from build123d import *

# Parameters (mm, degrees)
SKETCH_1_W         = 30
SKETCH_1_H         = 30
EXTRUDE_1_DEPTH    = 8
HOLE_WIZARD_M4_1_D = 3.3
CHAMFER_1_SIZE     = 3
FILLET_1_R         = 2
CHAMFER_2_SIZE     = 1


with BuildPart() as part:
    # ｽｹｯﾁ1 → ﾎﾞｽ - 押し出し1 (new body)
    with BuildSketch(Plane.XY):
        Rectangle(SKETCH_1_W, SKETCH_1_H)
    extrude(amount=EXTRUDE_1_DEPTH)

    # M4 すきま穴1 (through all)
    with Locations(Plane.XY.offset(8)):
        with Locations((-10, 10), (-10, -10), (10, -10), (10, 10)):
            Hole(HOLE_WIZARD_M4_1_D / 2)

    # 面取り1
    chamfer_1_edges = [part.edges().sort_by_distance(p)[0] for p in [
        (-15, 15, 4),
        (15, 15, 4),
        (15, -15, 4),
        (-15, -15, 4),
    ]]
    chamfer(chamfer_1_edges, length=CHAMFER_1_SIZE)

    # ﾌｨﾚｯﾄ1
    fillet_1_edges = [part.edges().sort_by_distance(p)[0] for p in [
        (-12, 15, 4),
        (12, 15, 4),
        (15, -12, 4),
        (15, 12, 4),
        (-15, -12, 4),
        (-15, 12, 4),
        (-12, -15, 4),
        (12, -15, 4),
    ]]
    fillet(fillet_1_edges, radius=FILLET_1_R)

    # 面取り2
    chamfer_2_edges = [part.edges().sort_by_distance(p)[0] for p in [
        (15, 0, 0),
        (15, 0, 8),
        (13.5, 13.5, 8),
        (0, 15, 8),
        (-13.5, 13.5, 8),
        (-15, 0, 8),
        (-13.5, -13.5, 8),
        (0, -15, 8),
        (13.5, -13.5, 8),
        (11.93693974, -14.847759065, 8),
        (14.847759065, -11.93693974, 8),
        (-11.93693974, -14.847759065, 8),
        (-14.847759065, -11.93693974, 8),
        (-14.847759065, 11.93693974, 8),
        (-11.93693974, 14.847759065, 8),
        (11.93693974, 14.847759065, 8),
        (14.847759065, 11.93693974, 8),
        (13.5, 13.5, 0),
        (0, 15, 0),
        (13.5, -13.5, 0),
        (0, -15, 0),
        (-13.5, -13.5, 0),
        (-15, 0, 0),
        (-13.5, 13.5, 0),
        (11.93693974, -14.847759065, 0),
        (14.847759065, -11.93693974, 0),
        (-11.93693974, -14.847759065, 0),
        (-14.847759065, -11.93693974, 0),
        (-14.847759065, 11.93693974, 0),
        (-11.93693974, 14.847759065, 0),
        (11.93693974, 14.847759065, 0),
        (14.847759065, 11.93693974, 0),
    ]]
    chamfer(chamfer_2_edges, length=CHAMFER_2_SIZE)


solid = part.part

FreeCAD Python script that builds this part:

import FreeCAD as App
import Part
import Sketcher

V = App.Vector
Q = App.Units.Quantity


def edges_at(feature, points):
    """Names of the edges that pass closest to the given points."""
    edges = feature.Shape.Edges
    near = lambda p: min(range(len(edges)), key=lambda i: edges[i].distToShape(Part.Vertex(*p))[0])
    return sorted({f"Edge{near(p) + 1}" for p in points})


def add_polygon(sketch, points):
    """Adds a closed chain of lines whose ends are joined by coincident constraints."""
    first, n = sketch.GeometryCount, len(points)
    for a, b in zip(points, points[1:] + points[:1]):
        sketch.addGeometry(Part.LineSegment(App.Vector(*a, 0), App.Vector(*b, 0)), False)
    for i in range(n):
        sketch.addConstraint(Sketcher.Constraint("Coincident", first + i, 2, first + (i + 1) % n, 1))

doc = App.newDocument("Part")
body = doc.addObject("PartDesign::Body", "Body")

# Sketch on XY plane
sketch1 = doc.addObject("Sketcher::SketchObject", "Sketch")
body.addObject(sketch1)
sketch1.AttachmentSupport = (doc.XY_Plane, [""])
sketch1.MapMode = "FlatFace"
add_polygon(sketch1, [(-15, 15), (-15, -15), (15, -15), (15, 15)])  # lines 0-3
sketch1.addConstraint(Sketcher.Constraint("Vertical", 0))
sketch1.addConstraint(Sketcher.Constraint("Horizontal", 1))
sketch1.addConstraint(Sketcher.Constraint("Vertical", 2))
sketch1.addConstraint(Sketcher.Constraint("Horizontal", 3))
sketch1.addConstraint(Sketcher.Constraint("Symmetric", 0, 2, 2, 2, -1, 1))
sketch1.addConstraint(Sketcher.Constraint("Equal", 3, 0))
sketch1.addConstraint(Sketcher.Constraint("DistanceX", 1, 1, 1, 2, Q("30 mm")))
pad1 = doc.addObject("PartDesign::Pad", "Pad")
body.addObject(pad1)
pad1.Profile = sketch1
pad1.Length = 8

# Sketch on XY plane
sketch2 = doc.addObject("Sketcher::SketchObject", "Sketch001")
body.addObject(sketch2)
sketch2.AttachmentSupport = (doc.XY_Plane, [""])
sketch2.MapMode = "FlatFace"
sketch2.AttachmentOffset = App.Placement(V(0, 0, 8), App.Rotation())
sketch2.addGeometry(Part.Circle(V(-10, 10, 0), V(0, 0, 1), 1.6), False)
sketch2.addGeometry(Part.Circle(V(-10, -10, 0), V(0, 0, 1), 1.6), False)
sketch2.addGeometry(Part.Circle(V(10, -10, 0), V(0, 0, 1), 1.6), False)
sketch2.addGeometry(Part.Circle(V(10, 10, 0), V(0, 0, 1), 1.6), False)
sketch2.addConstraint(Sketcher.Constraint("Equal", 0, 1))
sketch2.addConstraint(Sketcher.Constraint("Equal", 1, 2))
sketch2.addConstraint(Sketcher.Constraint("Equal", 2, 3))
sketch2.addConstraint(Sketcher.Constraint("Symmetric", 0, 3, 2, 3, -1, 1))
sketch2.addConstraint(Sketcher.Constraint("Symmetric", 1, 3, 3, 3, -1, 1))
sketch2.addConstraint(Sketcher.Constraint("Symmetric", 1, 3, 2, 3, -2))
sketch2.addConstraint(Sketcher.Constraint("Diameter", 0, Q("3.3 mm")))
sketch2.addConstraint(Sketcher.Constraint("DistanceX", 0, 3, -1, 1, Q("10 mm")))
sketch2.addConstraint(Sketcher.Constraint("DistanceY", -1, 1, 0, 3, Q("10 mm")))
doc.recompute()
hole = doc.addObject("PartDesign::Hole", "Hole")
body.addObject(hole)
hole.Profile = sketch2
hole.ThreadType = "None"
hole.Diameter = 3.3
hole.DepthType = "ThroughAll"
doc.recompute()

chamfer = doc.addObject("PartDesign::Chamfer", "Chamfer")
body.addObject(chamfer)
chamfer.Base = (hole, edges_at(hole, [
    (-15, 15, 4),
    (15, 15, 4),
    (15, -15, 4),
    (-15, -15, 4),
]))
chamfer.Size = 3
doc.recompute()

fillet = doc.addObject("PartDesign::Fillet", "Fillet")
body.addObject(fillet)
fillet.Base = (chamfer, edges_at(chamfer, [
    (-12, 15, 4),
    (12, 15, 4),
    (15, -12, 4),
    (15, 12, 4),
    (-15, -12, 4),
    (-15, 12, 4),
    (-12, -15, 4),
    (12, -15, 4),
]))
fillet.Radius = 2
doc.recompute()

chamfer2 = doc.addObject("PartDesign::Chamfer", "Chamfer001")
body.addObject(chamfer2)
chamfer2.Base = (fillet, edges_at(fillet, [
    (15, 0, 0),
    (15, 0, 8),
    (13.5, 13.5, 8),
    (0, 15, 8),
    (-13.5, 13.5, 8),
    (-15, 0, 8),
    (-13.5, -13.5, 8),
    (0, -15, 8),
    (13.5, -13.5, 8),
    (11.937, -14.848, 8),
    (14.848, -11.937, 8),
    (-11.937, -14.848, 8),
    (-14.848, -11.937, 8),
    (-14.848, 11.937, 8),
    (-11.937, 14.848, 8),
    (11.937, 14.848, 8),
    (14.848, 11.937, 8),
    (13.5, 13.5, 0),
    (0, 15, 0),
    (13.5, -13.5, 0),
    (0, -15, 0),
    (-13.5, -13.5, 0),
    (-15, 0, 0),
    (-13.5, 13.5, 0),
    (11.937, -14.848, 0),
    (14.848, -11.937, 0),
    (-11.937, -14.848, 0),
    (-14.848, -11.937, 0),
    (-14.848, 11.937, 0),
    (-11.937, 14.848, 0),
    (11.937, 14.848, 0),
    (14.848, 11.937, 0),
]))
chamfer2.Size = 1

doc.recompute()
